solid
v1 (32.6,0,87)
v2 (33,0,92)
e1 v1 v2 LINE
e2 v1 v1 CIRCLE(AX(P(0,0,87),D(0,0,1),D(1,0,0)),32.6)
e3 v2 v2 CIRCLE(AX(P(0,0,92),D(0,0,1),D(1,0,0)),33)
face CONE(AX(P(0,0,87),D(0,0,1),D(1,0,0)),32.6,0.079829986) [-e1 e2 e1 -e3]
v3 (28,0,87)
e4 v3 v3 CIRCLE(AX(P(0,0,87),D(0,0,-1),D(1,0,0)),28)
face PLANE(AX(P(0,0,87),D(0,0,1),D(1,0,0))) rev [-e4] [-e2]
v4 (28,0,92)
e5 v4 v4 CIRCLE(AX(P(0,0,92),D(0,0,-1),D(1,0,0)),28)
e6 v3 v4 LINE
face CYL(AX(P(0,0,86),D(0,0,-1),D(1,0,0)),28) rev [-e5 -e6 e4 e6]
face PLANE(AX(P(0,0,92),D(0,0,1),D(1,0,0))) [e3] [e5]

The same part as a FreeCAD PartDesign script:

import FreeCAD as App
import Part
import Sketcher
from FreeCAD import Vector
Q = App.Units.Quantity


def add_polygon(sketch, points):
    """Adds a closed chain of lines whose ends are joined by coincident constraints."""
    first, n = sketch.GeometryCount, len(points)
    for a, b in zip(points, points[1:] + points[:1]):
        sketch.addGeometry(Part.LineSegment(App.Vector(*a, 0), App.Vector(*b, 0)), False)
    for i in range(n):
        sketch.addConstraint(Sketcher.Constraint("Coincident", first + i, 2, first + (i + 1) % n, 1))

doc = App.newDocument("Part")
params = doc.addObject("Spreadsheet::Sheet", "Params")
for row, (alias, value) in enumerate([
    ("sketch1_diameter", "56 mm"),
    ("pad1_length", "10 mm"),
    ("sketch2_width", "33 mm"),
    ("sketch2_height", "5 mm"),
    ("sketch2_width2", "32.6 mm"),
    ("revolution_angle", "360 deg"),
], start=1):
    params.set(f"A{row}", alias)
    params.set(f"B{row}", "=" + value)
    params.setAlias(f"B{row}", alias)

body = doc.addObject("PartDesign::Body", "Body")

sketch1 = body.newObject("Sketcher::SketchObject", "Sketch")
sketch1.AttachmentSupport = (doc.getObject("XY_Plane"), [""])
sketch1.MapMode = "FlatFace"
sketch1.AttachmentOffset = App.Placement(Vector(0, 0, 86), App.Rotation())
sketch1.addGeometry(Part.Circle(Vector(0, 0, 0), Vector(0, 0, 1), 28), False)
sketch1.addConstraint([
    Sketcher.Constraint("Coincident", 0, 3, -1, 1),
    Sketcher.Constraint("Diameter", 0, Q("56 mm")),
])
sketch1.setExpression("Constraints[1]", "Params.sketch1_diameter")
pad1 = body.newObject("PartDesign::Pad", "Pad")
pad1.Profile = sketch1
pad1.setExpression("Length", "Params.pad1_length")
body2 = doc.addObject("PartDesign::Body", "Body001")

sketch2 = body2.newObject("Sketcher::SketchObject", "Sketch001")
sketch2.AttachmentSupport = (doc.getObject("XZ_Plane001"), [""])
sketch2.MapMode = "FlatFace"
add_polygon(sketch2, [(0, 87), (33, 87), (33, 92), (0, 92)])
sketch2.addConstraint([
    Sketcher.Constraint("Horizontal", 0),
    Sketcher.Constraint("Horizontal", 2),
    Sketcher.Constraint("Vertical", 3),
    Sketcher.Constraint("PointOnObject", 2, 2, -2),
    Sketcher.Constraint("DistanceX", 2, 2, 2, 1, Q("33 mm")),
    Sketcher.Constraint("DistanceY", 3, 2, 3, 1, Q("5 mm")),
    Sketcher.Constraint("DistanceX", 0, 1, 0, 2, Q("32.6 mm")),
    Sketcher.Constraint("DistanceY", -1, 1, 0, 2, Q("87 mm")),
])
sketch2.setExpression("Constraints[8]", "Params.sketch2_width")
sketch2.setExpression("Constraints[9]", "Params.sketch2_height")
sketch2.setExpression("Constraints[10]", "Params.sketch2_width2")
revolution = body2.newObject("PartDesign::Revolution", "Revolution")
revolution.Profile = sketch2
revolution.ReferenceAxis = (sketch2, ["V_Axis"])
revolution.setExpression("Angle", "Params.revolution_angle")
doc.recompute()

boolean = body2.newObject("PartDesign::Boolean", "Boolean")
boolean.Type = "Cut"
boolean.addObjects([body])

doc.recompute()
